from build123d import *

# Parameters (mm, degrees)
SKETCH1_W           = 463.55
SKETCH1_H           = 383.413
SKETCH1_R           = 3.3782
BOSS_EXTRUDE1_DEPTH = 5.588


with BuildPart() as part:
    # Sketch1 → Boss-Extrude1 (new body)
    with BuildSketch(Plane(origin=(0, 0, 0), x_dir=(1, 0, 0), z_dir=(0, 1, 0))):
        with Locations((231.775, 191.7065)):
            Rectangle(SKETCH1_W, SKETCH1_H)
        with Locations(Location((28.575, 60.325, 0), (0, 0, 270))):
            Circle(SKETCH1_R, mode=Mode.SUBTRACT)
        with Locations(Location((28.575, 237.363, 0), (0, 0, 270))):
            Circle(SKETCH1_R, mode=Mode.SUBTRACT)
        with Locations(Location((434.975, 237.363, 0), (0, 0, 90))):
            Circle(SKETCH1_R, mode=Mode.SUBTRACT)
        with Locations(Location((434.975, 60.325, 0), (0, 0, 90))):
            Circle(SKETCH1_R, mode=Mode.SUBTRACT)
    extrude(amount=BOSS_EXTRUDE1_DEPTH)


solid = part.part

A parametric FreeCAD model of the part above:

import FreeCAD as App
import Part
import Sketcher

V = App.Vector
Q = App.Units.Quantity


def add_polygon(sketch, points):
    """Adds a closed chain of lines whose ends are joined by coincident constraints."""
    first, n = sketch.GeometryCount, len(points)
    for a, b in zip(points, points[1:] + points[:1]):
        sketch.addGeometry(Part.LineSegment(App.Vector(*a, 0), App.Vector(*b, 0)), False)
    for i in range(n):
        sketch.addConstraint(Sketcher.Constraint("Coincident", first + i, 2, first + (i + 1) % n, 1))

doc = App.newDocument("Part")
params = doc.addObject("Spreadsheet::Sheet", "Params")
for row, (alias, value) in enumerate([
    ("sketch1_diameter", "0.266 in"),
    ("sketch1_width", "18.25 in"),
    ("sketch1_height", "15.095 in"),
    ("pad1_length", "0.22 in"),
], start=1):
    params.set(f"A{row}", alias)
    params.set(f"B{row}", "=" + value)
    params.setAlias(f"B{row}", alias)

body = doc.addObject("PartDesign::Body", "Body")

sketch1 = body.newObject("Sketcher::SketchObject", "Sketch")
sketch1.AttachmentSupport = (doc.getObject("XZ_Plane"), [""])
sketch1.MapMode = "FlatFace"
add_polygon(sketch1, [(0, -383.4), (0, 0), (463.6, 0), (463.6, -383.4)])
sketch1.addGeometry(Part.Circle(V(28.6, -60.3, 0), V(0, 0, 1), 3.4), False)
sketch1.addGeometry(Part.Circle(V(435, -60.3, 0), V(0, 0, 1), 3.4), False)
sketch1.addGeometry(Part.Circle(V(28.6, -237.4, 0), V(0, 0, 1), 3.4), False)
sketch1.addGeometry(Part.Circle(V(435, -237.4, 0), V(0, 0, 1), 3.4), False)
sketch1.addConstraint(Sketcher.Constraint("Vertical", 0))
sketch1.addConstraint(Sketcher.Constraint("Horizontal", 1))
sketch1.addConstraint(Sketcher.Constraint("Vertical", 2))
sketch1.addConstraint(Sketcher.Constraint("Horizontal", 3))
sketch1.addConstraint(Sketcher.Constraint("Coincident", 0, 2, -1, 1))
sketch1.addConstraint(Sketcher.Constraint("Equal", 4, 5))
sketch1.addConstraint(Sketcher.Constraint("Equal", 5, 6))
sketch1.addConstraint(Sketcher.Constraint("Equal", 6, 7))
sketch1.addConstraint(Sketcher.Constraint("Horizontal", 4, 3, 5, 3))
sketch1.addConstraint(Sketcher.Constraint("Horizontal", 6, 3, 7, 3))
sketch1.addConstraint(Sketcher.Constraint("Vertical", 4, 3, 6, 3))
sketch1.addConstraint(Sketcher.Constraint("Vertical", 5, 3, 7, 3))
sketch1.addConstraint(Sketcher.Constraint("Diameter", 4, Q("0.266 in")))
sketch1.addConstraint(Sketcher.Constraint("DistanceX", 4, 3, 5, 3, Q("16 in")))
sketch1.addConstraint(Sketcher.Constraint("DistanceX", 1, 1, 1, 2, Q("18.25 in")))
sketch1.addConstraint(Sketcher.Constraint("DistanceY", 0, 1, 0, 2, Q("15.095 in")))
sketch1.addConstraint(Sketcher.Constraint("DistanceY", 6, 3, 4, 3, Q("6.97 in")))
sketch1.addConstraint(Sketcher.Constraint("DistanceY", 2, 2, 7, 3, Q("5.75 in")))
sketch1.addConstraint(Sketcher.Constraint("DistanceX", -1, 1, 4, 3, Q("1.125 in")))
sketch1.setExpression("Constraints[16]", "Params.sketch1_diameter")
sketch1.setExpression("Constraints[18]", "Params.sketch1_width")
sketch1.setExpression("Constraints[19]", "Params.sketch1_height")
pad1 = body.newObject("PartDesign::Pad", "Pad")
pad1.Profile = sketch1
pad1.setExpression("Length", "Params.pad1_length")
pad1.Reversed = True

doc.recompute()
